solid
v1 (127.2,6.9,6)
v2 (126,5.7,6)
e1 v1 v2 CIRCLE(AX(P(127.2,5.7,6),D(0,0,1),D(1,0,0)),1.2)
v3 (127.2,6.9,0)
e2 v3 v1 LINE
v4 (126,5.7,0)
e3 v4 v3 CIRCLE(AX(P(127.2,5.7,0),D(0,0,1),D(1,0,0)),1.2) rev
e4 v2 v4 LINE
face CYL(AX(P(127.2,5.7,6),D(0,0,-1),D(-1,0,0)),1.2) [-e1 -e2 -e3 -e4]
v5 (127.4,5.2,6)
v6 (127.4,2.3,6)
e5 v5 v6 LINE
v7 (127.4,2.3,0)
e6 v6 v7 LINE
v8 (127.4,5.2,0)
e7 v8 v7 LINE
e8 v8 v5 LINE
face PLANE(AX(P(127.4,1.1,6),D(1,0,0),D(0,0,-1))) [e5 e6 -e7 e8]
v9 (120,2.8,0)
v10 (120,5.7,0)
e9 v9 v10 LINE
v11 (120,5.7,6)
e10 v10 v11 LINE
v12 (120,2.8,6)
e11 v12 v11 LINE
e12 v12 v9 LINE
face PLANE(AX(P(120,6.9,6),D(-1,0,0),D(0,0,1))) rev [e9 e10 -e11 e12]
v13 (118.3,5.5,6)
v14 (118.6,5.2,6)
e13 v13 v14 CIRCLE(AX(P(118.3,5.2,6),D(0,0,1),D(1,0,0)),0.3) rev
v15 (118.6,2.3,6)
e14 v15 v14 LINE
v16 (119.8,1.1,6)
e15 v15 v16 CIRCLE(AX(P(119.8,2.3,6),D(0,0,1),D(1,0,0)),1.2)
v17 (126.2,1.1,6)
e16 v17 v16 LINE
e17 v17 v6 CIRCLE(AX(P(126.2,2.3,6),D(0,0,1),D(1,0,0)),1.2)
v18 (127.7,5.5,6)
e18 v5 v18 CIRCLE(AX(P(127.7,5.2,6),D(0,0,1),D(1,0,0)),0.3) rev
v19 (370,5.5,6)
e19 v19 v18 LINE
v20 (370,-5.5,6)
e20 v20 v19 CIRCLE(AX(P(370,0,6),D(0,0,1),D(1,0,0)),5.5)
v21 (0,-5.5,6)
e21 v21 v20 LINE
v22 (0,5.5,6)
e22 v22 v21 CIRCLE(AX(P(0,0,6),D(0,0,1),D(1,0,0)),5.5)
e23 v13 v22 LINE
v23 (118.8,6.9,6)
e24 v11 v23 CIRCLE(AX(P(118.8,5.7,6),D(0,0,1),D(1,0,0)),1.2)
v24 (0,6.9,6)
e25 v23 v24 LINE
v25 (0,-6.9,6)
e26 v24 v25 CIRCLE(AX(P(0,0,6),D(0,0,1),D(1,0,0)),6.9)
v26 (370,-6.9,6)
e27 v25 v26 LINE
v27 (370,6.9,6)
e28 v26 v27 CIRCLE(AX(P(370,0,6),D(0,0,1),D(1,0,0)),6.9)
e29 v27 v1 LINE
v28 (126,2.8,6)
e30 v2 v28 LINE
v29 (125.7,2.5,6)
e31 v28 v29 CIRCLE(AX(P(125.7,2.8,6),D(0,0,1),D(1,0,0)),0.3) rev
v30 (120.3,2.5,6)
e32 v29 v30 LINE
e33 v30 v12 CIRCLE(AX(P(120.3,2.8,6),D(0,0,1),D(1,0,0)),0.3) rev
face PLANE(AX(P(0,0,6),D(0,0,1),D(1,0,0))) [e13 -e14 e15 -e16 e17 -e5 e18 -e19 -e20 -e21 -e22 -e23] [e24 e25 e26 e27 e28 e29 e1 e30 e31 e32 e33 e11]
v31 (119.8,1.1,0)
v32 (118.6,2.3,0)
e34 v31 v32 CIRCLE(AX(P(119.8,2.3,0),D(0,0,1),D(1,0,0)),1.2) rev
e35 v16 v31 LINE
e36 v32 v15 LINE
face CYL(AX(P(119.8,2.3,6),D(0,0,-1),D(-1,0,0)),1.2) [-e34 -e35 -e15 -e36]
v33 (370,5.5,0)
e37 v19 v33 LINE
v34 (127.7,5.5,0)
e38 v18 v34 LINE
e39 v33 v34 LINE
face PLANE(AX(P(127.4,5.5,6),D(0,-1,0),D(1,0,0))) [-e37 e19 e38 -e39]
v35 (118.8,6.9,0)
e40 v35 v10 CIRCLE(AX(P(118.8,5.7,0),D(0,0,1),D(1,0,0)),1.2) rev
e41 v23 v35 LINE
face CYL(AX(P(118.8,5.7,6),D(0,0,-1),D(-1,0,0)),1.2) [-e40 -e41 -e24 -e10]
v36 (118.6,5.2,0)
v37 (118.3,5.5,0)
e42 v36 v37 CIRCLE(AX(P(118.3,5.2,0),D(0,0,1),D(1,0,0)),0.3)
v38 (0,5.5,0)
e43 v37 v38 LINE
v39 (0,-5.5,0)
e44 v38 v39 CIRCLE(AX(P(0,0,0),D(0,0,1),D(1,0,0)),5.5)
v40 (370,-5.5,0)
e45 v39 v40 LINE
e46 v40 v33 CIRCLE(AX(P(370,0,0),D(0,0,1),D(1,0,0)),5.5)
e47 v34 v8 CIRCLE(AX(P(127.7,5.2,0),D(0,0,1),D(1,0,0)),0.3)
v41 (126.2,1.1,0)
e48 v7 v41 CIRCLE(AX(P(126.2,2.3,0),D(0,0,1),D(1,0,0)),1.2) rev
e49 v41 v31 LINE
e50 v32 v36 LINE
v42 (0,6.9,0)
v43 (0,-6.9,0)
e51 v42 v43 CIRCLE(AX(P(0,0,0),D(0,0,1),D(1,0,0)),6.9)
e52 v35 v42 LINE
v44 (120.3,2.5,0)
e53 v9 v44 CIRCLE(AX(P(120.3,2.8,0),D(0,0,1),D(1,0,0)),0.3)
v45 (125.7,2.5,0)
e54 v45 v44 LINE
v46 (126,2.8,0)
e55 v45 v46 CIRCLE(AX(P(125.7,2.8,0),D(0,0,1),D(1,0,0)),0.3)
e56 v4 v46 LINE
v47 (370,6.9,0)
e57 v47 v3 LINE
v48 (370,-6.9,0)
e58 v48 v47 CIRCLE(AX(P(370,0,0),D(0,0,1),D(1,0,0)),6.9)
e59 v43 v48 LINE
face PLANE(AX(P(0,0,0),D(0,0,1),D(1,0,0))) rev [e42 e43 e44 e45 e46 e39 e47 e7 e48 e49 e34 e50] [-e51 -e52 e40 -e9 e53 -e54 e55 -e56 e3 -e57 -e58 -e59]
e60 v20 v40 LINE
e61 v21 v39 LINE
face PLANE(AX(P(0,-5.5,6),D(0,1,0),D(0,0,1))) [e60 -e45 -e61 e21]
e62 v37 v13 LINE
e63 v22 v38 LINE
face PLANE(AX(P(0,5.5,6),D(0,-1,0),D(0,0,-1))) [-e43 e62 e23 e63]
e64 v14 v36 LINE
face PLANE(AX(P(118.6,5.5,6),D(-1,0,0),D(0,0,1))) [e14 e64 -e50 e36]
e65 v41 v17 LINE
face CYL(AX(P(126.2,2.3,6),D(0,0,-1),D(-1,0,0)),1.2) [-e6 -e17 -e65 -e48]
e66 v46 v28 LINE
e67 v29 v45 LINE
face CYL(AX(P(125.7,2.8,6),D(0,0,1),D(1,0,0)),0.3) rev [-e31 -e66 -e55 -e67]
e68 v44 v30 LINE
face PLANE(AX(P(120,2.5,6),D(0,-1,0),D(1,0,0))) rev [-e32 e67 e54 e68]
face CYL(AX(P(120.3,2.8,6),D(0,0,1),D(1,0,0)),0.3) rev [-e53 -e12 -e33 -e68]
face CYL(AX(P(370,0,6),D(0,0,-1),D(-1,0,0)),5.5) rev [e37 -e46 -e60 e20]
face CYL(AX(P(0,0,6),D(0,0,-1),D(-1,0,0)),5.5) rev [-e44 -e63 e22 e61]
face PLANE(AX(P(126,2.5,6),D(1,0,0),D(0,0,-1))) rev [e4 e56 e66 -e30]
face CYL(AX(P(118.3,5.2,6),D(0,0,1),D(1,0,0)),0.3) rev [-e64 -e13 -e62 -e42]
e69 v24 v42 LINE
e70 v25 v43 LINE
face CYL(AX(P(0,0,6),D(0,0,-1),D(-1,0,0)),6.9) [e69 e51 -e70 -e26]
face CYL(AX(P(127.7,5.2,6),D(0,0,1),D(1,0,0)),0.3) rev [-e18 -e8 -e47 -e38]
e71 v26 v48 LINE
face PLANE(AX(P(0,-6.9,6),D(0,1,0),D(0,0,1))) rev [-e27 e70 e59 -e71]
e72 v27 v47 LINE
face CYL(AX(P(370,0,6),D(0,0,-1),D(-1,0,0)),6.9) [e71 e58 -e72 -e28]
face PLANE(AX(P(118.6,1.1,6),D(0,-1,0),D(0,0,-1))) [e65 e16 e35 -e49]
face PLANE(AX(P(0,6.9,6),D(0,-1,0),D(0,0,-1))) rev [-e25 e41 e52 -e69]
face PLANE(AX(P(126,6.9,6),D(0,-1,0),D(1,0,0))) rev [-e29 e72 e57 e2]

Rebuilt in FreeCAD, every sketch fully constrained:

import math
import FreeCAD as App
import Part
import Sketcher

V = App.Vector
Q = App.Units.Quantity


def edges_at(feature, points):
    """Names of the edges that pass closest to the given points."""
    edges = feature.Shape.Edges
    near = lambda p: min(range(len(edges)), key=lambda i: edges[i].distToShape(Part.Vertex(*p))[0])
    return sorted({f"Edge{near(p) + 1}" for p in points})

doc = App.newDocument("Part")
body = doc.addObject("PartDesign::Body", "Body")

# Sketch on XY plane
sketch1 = doc.addObject("Sketcher::SketchObject", "Sketch")
body.addObject(sketch1)
sketch1.AttachmentSupport = (doc.XY_Plane, [""])
sketch1.MapMode = "FlatFace"
sketch1.addGeometry(Part.LineSegment(V(120, 6.9, 0), V(0, 6.9, 0)), False)
sketch1.addGeometry(Part.ArcOfCircle(Part.Circle(V(0, 0, 0), V(0, 0, 1), 6.9), math.radians(90), math.radians(270)), False)
sketch1.addGeometry(Part.LineSegment(V(0, -6.9, 0), V(370, -6.9, 0)), False)
sketch1.addGeometry(Part.ArcOfCircle(Part.Circle(V(370, 0, 0), V(0, 0, 1), 6.9), math.radians(-90), math.radians(90)), False)
sketch1.addGeometry(Part.LineSegment(V(370, 6.9, 0), V(126, 6.9, 0)), False)
sketch1.addGeometry(Part.LineSegment(V(126, 6.9, 0), V(126, 2.5, 0)), False)
sketch1.addGeometry(Part.LineSegment(V(126, 2.5, 0), V(120, 2.5, 0)), False)
sketch1.addGeometry(Part.LineSegment(V(120, 2.5, 0), V(120, 6.9, 0)), False)
sketch1.addGeometry(Part.LineSegment(V(0, 5.5, 0), V(118.6, 5.5, 0)), False)
sketch1.addGeometry(Part.LineSegment(V(118.6, 5.5, 0), V(118.6, 1.1, 0)), False)
sketch1.addGeometry(Part.LineSegment(V(118.6, 1.1, 0), V(127.4, 1.1, 0)), False)
sketch1.addGeometry(Part.LineSegment(V(127.4, 1.1, 0), V(127.4, 5.5, 0)), False)
sketch1.addGeometry(Part.LineSegment(V(127.4, 5.5, 0), V(370, 5.5, 0)), False)
sketch1.addGeometry(Part.ArcOfCircle(Part.Circle(V(370, 0, 0), V(0, 0, 1), 5.5), math.radians(-90), math.radians(90)), False)
sketch1.addGeometry(Part.LineSegment(V(370, -5.5, 0), V(0, -5.5, 0)), False)
sketch1.addGeometry(Part.ArcOfCircle(Part.Circle(V(0, 0, 0), V(0, 0, 1), 5.5), math.radians(90), math.radians(270)), False)
sketch1.addConstraint(Sketcher.Constraint("Tangent", 0, 2, 1, 1))
sketch1.addConstraint(Sketcher.Constraint("Tangent", 1, 2, 2, 1))
sketch1.addConstraint(Sketcher.Constraint("Tangent", 2, 2, 3, 1))
sketch1.addConstraint(Sketcher.Constraint("Tangent", 3, 2, 4, 1))
sketch1.addConstraint(Sketcher.Constraint("Coincident", 4, 2, 5, 1))
sketch1.addConstraint(Sketcher.Constraint("Coincident", 5, 2, 6, 1))
sketch1.addConstraint(Sketcher.Constraint("Coincident", 6, 2, 7, 1))
sketch1.addConstraint(Sketcher.Constraint("Coincident", 7, 2, 0, 1))
sketch1.addConstraint(Sketcher.Constraint("Coincident", 8, 2, 9, 1))
sketch1.addConstraint(Sketcher.Constraint("Coincident", 9, 2, 10, 1))
sketch1.addConstraint(Sketcher.Constraint("Coincident", 10, 2, 11, 1))
sketch1.addConstraint(Sketcher.Constraint("Coincident", 11, 2, 12, 1))
sketch1.addConstraint(Sketcher.Constraint("Tangent", 12, 2, 13, 2))
sketch1.addConstraint(Sketcher.Constraint("Tangent", 13, 1, 14, 1))
sketch1.addConstraint(Sketcher.Constraint("Tangent", 14, 2, 15, 2))
sketch1.addConstraint(Sketcher.Constraint("Tangent", 15, 1, 8, 1))
sketch1.addConstraint(Sketcher.Constraint("Horizontal", 0))
sketch1.addConstraint(Sketcher.Constraint("Horizontal", 2))
sketch1.addConstraint(Sketcher.Constraint("Horizontal", 4))
sketch1.addConstraint(Sketcher.Constraint("Vertical", 5))
sketch1.addConstraint(Sketcher.Constraint("Horizontal", 6))
sketch1.addConstraint(Sketcher.Constraint("Vertical", 7))
sketch1.addConstraint(Sketcher.Constraint("Horizontal", 8))
sketch1.addConstraint(Sketcher.Constraint("Vertical", 9))
sketch1.addConstraint(Sketcher.Constraint("Horizontal", 10))
sketch1.addConstraint(Sketcher.Constraint("Vertical", 11))
sketch1.addConstraint(Sketcher.Constraint("Horizontal", 12))
sketch1.addConstraint(Sketcher.Constraint("Horizontal", 14))
sketch1.addConstraint(Sketcher.Constraint("Coincident", 1, 3, -1, 1))
sketch1.addConstraint(Sketcher.Constraint("Coincident", 15, 3, -1, 1))
sketch1.addConstraint(Sketcher.Constraint("Coincident", 13, 3, 3, 3))
sketch1.addConstraint(Sketcher.Constraint("Equal", 1, 3))
sketch1.addConstraint(Sketcher.Constraint("Equal", 7, 9))
sketch1.addConstraint(Sketcher.Constraint("Radius", 1, Q("6.9 mm")))
sketch1.addConstraint(Sketcher.Constraint("Radius", 13, Q("5.5 mm")))
sketch1.addConstraint(Sketcher.Constraint("DistanceX", 0, 2, 0, 1, Q("120 mm")))
sketch1.addConstraint(Sketcher.Constraint("DistanceX", 2, 1, 2, 2, Q("370 mm")))
sketch1.addConstraint(Sketcher.Constraint("DistanceX", 4, 2, 4, 1, Q("244 mm")))
sketch1.addConstraint(Sketcher.Constraint("DistanceX", 8, 1, 8, 2, Q("118.6 mm")))
sketch1.addConstraint(Sketcher.Constraint("DistanceX", 10, 1, 10, 2, Q("8.8 mm")))
sketch1.addConstraint(Sketcher.Constraint("DistanceY", 5, 2, 5, 1, Q("4.4 mm")))
pad1 = doc.addObject("PartDesign::Pad", "Pad")
body.addObject(pad1)
pad1.Profile = sketch1
pad1.Length = 6
doc.recompute()

fillet = doc.addObject("PartDesign::Fillet", "Fillet")
body.addObject(fillet)
fillet.Base = (pad1, edges_at(pad1, [
    (120, 2.5, 3),
    (126, 2.5, 3),
    (127.4, 5.5, 3),
    (118.6, 5.5, 3),
]))
fillet.Radius = 0.3
doc.recompute()

fillet2 = doc.addObject("PartDesign::Fillet", "Fillet001")
body.addObject(fillet2)
fillet2.Base = (fillet, edges_at(fillet, [
    (120, 6.9, 3),
    (126, 6.9, 3),
    (127.4, 1.1, 3),
    (118.6, 1.1, 3),
]))
fillet2.Radius = 1.2

doc.recompute()
